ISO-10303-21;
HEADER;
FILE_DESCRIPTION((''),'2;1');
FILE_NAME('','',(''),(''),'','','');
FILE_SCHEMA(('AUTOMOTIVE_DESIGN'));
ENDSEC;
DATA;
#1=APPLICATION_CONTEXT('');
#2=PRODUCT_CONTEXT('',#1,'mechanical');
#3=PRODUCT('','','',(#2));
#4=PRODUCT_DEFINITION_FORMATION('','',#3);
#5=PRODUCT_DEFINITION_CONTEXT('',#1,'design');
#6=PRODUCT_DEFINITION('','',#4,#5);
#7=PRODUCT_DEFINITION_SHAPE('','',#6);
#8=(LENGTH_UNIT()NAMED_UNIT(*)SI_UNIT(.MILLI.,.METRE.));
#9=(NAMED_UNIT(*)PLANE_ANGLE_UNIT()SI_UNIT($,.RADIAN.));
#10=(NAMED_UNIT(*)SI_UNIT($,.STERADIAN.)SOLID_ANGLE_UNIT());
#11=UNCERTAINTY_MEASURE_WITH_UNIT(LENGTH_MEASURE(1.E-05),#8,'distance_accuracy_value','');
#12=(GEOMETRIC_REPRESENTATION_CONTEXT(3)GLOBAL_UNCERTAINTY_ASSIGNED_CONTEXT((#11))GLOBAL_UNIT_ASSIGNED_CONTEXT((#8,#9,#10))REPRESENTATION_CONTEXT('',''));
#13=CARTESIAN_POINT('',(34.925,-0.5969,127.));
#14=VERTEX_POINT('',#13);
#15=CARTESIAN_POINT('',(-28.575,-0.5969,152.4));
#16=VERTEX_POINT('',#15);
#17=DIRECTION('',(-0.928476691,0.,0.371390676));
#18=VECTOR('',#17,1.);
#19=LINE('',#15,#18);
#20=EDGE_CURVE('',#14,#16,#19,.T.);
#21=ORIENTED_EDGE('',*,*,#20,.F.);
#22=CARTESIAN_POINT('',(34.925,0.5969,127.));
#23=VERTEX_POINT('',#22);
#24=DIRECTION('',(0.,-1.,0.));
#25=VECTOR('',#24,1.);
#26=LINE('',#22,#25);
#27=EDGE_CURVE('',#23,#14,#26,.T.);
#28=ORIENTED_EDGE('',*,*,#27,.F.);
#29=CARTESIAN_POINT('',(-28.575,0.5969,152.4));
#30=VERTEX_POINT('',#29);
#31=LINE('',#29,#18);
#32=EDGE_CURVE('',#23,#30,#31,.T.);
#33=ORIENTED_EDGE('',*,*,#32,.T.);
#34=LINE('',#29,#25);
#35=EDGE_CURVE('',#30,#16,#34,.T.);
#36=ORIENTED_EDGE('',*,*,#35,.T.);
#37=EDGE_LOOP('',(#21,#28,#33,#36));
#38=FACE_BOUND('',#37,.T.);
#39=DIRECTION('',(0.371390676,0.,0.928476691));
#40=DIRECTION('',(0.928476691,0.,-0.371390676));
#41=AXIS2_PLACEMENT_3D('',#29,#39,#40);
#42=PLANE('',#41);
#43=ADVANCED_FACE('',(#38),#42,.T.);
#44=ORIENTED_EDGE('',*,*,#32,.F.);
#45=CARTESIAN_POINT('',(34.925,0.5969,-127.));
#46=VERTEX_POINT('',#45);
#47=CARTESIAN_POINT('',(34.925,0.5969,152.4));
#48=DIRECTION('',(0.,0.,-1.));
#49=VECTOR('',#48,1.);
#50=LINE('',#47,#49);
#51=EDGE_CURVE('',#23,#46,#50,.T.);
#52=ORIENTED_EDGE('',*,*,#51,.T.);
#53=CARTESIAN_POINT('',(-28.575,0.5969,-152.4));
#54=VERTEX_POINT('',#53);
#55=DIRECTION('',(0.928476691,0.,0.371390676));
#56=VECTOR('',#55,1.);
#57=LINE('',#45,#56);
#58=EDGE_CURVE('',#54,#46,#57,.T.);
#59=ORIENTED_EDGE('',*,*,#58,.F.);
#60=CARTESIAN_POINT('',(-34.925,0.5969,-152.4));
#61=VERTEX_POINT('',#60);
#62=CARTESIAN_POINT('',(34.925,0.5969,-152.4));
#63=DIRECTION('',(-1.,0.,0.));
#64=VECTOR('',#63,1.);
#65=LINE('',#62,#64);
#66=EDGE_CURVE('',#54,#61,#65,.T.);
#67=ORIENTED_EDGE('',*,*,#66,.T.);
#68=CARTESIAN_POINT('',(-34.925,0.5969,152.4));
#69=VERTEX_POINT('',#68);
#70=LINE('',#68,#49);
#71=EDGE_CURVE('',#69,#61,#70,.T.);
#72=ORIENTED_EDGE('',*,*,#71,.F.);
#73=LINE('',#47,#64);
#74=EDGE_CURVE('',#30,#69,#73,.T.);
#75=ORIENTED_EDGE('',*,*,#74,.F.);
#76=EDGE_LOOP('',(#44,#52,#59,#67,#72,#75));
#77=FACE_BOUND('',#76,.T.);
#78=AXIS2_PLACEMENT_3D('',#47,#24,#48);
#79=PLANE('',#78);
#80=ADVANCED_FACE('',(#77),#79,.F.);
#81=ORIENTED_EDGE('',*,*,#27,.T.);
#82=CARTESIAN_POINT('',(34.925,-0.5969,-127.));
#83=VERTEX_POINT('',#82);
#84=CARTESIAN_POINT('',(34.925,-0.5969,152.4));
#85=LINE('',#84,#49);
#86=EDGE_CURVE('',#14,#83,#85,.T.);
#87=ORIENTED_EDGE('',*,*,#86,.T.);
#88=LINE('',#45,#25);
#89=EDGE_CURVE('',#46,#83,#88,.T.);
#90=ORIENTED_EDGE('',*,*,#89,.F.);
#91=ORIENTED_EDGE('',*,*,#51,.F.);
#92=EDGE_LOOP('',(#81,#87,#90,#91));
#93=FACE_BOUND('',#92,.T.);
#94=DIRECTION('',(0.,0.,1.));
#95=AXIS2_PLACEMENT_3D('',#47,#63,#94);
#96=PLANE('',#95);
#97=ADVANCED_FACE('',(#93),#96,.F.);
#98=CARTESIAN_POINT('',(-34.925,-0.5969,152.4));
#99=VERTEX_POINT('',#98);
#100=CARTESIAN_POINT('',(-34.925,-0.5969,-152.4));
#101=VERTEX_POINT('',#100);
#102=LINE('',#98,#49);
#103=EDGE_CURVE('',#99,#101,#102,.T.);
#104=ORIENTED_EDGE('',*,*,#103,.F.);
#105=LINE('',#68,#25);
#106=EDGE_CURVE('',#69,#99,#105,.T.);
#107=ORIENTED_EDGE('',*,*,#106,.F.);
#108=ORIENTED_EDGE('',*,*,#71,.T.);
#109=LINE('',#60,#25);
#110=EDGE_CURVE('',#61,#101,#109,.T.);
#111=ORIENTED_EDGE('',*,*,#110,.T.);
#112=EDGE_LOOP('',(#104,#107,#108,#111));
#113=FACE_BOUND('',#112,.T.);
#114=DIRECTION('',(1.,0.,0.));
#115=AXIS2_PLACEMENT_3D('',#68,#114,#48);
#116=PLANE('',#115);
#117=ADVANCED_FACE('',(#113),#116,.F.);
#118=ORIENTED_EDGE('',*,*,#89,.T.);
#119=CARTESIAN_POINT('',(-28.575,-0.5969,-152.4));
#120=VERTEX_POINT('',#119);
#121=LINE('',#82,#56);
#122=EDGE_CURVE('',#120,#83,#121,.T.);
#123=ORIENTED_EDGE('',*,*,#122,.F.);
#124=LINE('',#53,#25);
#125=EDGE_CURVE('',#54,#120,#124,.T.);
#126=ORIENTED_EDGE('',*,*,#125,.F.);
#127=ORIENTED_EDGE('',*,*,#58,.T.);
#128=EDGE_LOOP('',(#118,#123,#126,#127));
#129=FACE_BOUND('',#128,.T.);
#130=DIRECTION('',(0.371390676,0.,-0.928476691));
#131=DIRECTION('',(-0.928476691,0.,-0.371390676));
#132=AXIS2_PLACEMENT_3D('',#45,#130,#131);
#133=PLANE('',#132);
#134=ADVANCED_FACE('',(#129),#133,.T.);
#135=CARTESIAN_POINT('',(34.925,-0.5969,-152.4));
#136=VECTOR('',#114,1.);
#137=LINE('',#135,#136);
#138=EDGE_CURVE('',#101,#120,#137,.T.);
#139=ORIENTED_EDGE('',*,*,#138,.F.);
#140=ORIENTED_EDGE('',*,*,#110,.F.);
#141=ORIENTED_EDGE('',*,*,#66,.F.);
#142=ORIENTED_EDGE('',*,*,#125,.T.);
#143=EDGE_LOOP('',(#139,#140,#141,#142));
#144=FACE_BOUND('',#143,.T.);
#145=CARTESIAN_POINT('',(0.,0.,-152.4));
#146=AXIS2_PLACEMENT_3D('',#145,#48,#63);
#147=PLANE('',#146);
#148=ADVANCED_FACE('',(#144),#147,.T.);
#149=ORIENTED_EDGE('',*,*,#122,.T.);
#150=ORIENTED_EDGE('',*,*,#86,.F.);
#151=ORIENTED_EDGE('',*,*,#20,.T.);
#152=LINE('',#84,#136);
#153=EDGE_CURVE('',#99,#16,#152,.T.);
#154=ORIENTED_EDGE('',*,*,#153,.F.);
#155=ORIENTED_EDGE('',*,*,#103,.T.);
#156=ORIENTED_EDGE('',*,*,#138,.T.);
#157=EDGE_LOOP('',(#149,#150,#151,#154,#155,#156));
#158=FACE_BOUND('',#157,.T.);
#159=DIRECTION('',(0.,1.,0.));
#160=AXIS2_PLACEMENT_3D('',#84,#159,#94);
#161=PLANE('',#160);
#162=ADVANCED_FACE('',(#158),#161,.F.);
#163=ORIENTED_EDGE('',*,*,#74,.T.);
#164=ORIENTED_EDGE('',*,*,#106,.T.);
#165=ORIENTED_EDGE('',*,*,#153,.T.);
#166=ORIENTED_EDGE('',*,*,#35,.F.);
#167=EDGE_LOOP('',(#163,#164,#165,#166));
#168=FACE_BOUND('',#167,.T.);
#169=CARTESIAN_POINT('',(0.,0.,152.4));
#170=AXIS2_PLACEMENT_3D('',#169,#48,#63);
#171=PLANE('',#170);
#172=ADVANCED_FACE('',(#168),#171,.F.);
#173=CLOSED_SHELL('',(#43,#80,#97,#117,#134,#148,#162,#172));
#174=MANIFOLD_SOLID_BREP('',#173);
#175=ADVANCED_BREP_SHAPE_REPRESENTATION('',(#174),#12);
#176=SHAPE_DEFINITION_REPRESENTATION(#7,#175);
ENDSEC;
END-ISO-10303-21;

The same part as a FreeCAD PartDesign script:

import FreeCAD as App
import Part
import Sketcher

V = App.Vector
Q = App.Units.Quantity


def add_polygon(sketch, points):
    """Adds a closed chain of lines whose ends are joined by coincident constraints."""
    first, n = sketch.GeometryCount, len(points)
    for a, b in zip(points, points[1:] + points[:1]):
        sketch.addGeometry(Part.LineSegment(App.Vector(*a, 0), App.Vector(*b, 0)), False)
    for i in range(n):
        sketch.addConstraint(Sketcher.Constraint("Coincident", first + i, 2, first + (i + 1) % n, 1))

doc = App.newDocument("Part")
body = doc.addObject("PartDesign::Body", "Body")

sketch1 = doc.addObject("Sketcher::SketchObject", "Sketch")
body.addObject(sketch1)
sketch1.AttachmentSupport = (doc.XY_Plane, [""])
sketch1.MapMode = "FlatFace"
add_polygon(sketch1, [(-34.925, 0.5969), (-34.925, -0.5969), (34.925, -0.5969), (34.925, 0.5969)])
sketch1.addConstraint([
    Sketcher.Constraint("Vertical", 0),
    Sketcher.Constraint("Horizontal", 1),
    Sketcher.Constraint("Vertical", 2),
    Sketcher.Constraint("Horizontal", 3),
    Sketcher.Constraint("Symmetric", 0, 2, 2, 2, -1, 1),
    Sketcher.Constraint("DistanceX", 1, 1, 1, 2, Q("2.75 in")),
    Sketcher.Constraint("DistanceY", 0, 2, 0, 1, Q("0.047 in")),
])
pad1 = doc.addObject("PartDesign::Pad", "Pad")
body.addObject(pad1)
pad1.Profile = sketch1
pad1.Type = "TwoLengths"
pad1.Length = Q("6 in")
pad1.Length2 = Q("6 in")

sketch2 = doc.addObject("Sketcher::SketchObject", "Sketch001")
body.addObject(sketch2)
sketch2.AttachmentSupport = (doc.XZ_Plane, [""])
sketch2.MapMode = "FlatFace"
sketch2.AttachmentOffset = App.Placement(V(0, 0, 0.0235 * 25.4), App.Rotation())
add_polygon(sketch2, [(-67.195, 184.67), (-67.195, -184.67), (67.195, -184.67), (67.195, 184.67)])
add_polygon(sketch2, [(-34.925, 152.4), (-28.575, 152.4), (34.925, 127), (34.925, -127), (-28.575, -152.4), (-34.925, -152.4)])
sketch2.addConstraint([
    Sketcher.Constraint("Vertical", 0),
    Sketcher.Constraint("Horizontal", 1),
    Sketcher.Constraint("Vertical", 2),
    Sketcher.Constraint("Horizontal", 3),
    Sketcher.Constraint("Horizontal", 4),
    Sketcher.Constraint("Vertical", 6),
    Sketcher.Constraint("Horizontal", 8),
    Sketcher.Constraint("Vertical", 9),
    Sketcher.Constraint("Symmetric", 0, 2, 2, 2, -1, 1),
    Sketcher.Constraint("Symmetric", 4, 2, 7, 2, -1),
    Sketcher.Constraint("Equal", 5, 7),
    Sketcher.Constraint("DistanceY", 6, 2, 6, 1, Q("10 in")),
    Sketcher.Constraint("DistanceY", 9, 1, 9, 2, Q("12 in")),
    Sketcher.Constraint("DistanceX", 4, 1, 4, 2, Q("0.25 in")),
    Sketcher.Constraint("DistanceX", 4, 2, 5, 2, Q("2.5 in")),
    Sketcher.Constraint("DistanceX", 4, 2, -1, 1, Q("1.125 in")),
    Sketcher.Constraint("DistanceX", 1, 1, 1, 2, Q("134.39 mm")),
    Sketcher.Constraint("DistanceY", 0, 2, 0, 1, Q("369.34 mm")),
])
pocket1 = doc.addObject("PartDesign::Pocket", "Pocket")
body.addObject(pocket1)
pocket1.Profile = sketch2
pocket1.Type = "ThroughAll"

doc.recompute()
